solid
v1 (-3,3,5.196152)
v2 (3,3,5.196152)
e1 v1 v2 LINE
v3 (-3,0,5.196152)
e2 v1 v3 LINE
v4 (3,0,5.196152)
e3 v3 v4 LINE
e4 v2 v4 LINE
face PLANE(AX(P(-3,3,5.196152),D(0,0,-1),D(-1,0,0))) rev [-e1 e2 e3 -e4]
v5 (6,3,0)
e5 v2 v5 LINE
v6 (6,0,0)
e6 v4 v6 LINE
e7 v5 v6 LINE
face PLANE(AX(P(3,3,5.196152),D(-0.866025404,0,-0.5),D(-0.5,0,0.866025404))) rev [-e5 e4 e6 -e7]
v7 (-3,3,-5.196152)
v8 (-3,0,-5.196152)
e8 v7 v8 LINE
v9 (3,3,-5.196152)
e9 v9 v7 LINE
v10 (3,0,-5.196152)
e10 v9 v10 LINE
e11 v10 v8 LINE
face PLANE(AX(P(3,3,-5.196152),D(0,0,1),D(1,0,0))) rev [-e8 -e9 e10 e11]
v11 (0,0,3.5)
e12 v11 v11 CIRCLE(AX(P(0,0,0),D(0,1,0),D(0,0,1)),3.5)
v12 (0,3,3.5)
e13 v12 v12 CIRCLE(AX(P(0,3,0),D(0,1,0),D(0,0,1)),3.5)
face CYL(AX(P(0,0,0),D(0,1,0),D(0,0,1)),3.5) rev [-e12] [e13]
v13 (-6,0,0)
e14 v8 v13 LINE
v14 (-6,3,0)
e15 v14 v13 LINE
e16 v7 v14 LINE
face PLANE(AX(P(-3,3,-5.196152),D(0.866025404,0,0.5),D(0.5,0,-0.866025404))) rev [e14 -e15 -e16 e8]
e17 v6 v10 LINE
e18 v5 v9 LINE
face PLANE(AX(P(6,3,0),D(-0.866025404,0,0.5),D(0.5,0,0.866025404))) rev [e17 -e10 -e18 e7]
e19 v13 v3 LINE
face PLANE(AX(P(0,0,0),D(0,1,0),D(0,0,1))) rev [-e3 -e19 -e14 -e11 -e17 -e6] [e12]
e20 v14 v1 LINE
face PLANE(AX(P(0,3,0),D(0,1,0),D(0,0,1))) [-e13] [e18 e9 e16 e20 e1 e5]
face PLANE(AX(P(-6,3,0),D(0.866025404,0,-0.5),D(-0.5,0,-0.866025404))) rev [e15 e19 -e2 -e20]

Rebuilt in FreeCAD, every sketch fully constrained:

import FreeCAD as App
import Part
import Sketcher

V = App.Vector
Q = App.Units.Quantity


def add_polygon(sketch, points):
    """Adds a closed chain of lines whose ends are joined by coincident constraints."""
    first, n = sketch.GeometryCount, len(points)
    for a, b in zip(points, points[1:] + points[:1]):
        sketch.addGeometry(Part.LineSegment(App.Vector(*a, 0), App.Vector(*b, 0)), False)
    for i in range(n):
        sketch.addConstraint(Sketcher.Constraint("Coincident", first + i, 2, first + (i + 1) % n, 1))

doc = App.newDocument("Part")
params = doc.addObject("Spreadsheet::Sheet", "Params")
for row, (alias, value) in enumerate([
    ("sketch1_width", "6 mm"),
    ("sketch1_length", "6 mm"),
    ("pad1_length", "3 mm"),
    ("sketch2_diameter", "7 mm"),
], start=1):
    params.set(f"A{row}", alias)
    params.set(f"B{row}", "=" + value)
    params.setAlias(f"B{row}", alias)

body = doc.addObject("PartDesign::Body", "Body")

sketch1 = doc.addObject("Sketcher::SketchObject", "Sketch")
body.addObject(sketch1)
sketch1.AttachmentSupport = (doc.XZ_Plane, [""])
sketch1.MapMode = "FlatFace"
add_polygon(sketch1, [(6, 0), (3, -5), (-3, -5), (-6, 0), (-3, 5), (3, 5)])
sketch1.addConstraint([
    Sketcher.Constraint("Horizontal", 1),
    Sketcher.Constraint("Horizontal", 4),
    Sketcher.Constraint("Symmetric", 0, 2, 3, 2, -1, 1),
    Sketcher.Constraint("Symmetric", 2, 2, 5, 2, -1, 1),
    Sketcher.Constraint("PointOnObject", 2, 2, -1),
    Sketcher.Constraint("Parallel", 2, 5),
    Sketcher.Constraint("Vertical", 1, 2, 3, 2),
    Sketcher.Constraint("DistanceX", 1, 2, 1, 1, Q("6 mm")),
    Sketcher.Constraint("Angle", 0, Q("-120 deg")),
    Sketcher.Constraint("Distance", 0, Q("6 mm")),
])
sketch1.setExpression("Constraints[13]", "Params.sketch1_width")
sketch1.setExpression("Constraints[15]", "Params.sketch1_length")
pad1 = doc.addObject("PartDesign::Pad", "Pad")
body.addObject(pad1)
pad1.Profile = sketch1
pad1.setExpression("Length", "Params.pad1_length")
pad1.Reversed = True

sketch2 = doc.addObject("Sketcher::SketchObject", "Sketch001")
body.addObject(sketch2)
sketch2.AttachmentSupport = (doc.XZ_Plane, [""])
sketch2.MapMode = "FlatFace"
sketch2.AttachmentOffset = App.Placement(V(0, 0, -3), App.Rotation())
sketch2.addGeometry(Part.Circle(V(0, 0, 0), V(0, 0, 1), 3.5), False)
sketch2.addConstraint([
    Sketcher.Constraint("Coincident", 0, 3, -1, 1),
    Sketcher.Constraint("Diameter", 0, Q("7 mm")),
])
sketch2.setExpression("Constraints[1]", "Params.sketch2_diameter")
pocket1 = doc.addObject("PartDesign::Pocket", "Pocket")
body.addObject(pocket1)
pocket1.Profile = sketch2
pocket1.Type = "ThroughAll"
pocket1.Reversed = True

doc.recompute()
